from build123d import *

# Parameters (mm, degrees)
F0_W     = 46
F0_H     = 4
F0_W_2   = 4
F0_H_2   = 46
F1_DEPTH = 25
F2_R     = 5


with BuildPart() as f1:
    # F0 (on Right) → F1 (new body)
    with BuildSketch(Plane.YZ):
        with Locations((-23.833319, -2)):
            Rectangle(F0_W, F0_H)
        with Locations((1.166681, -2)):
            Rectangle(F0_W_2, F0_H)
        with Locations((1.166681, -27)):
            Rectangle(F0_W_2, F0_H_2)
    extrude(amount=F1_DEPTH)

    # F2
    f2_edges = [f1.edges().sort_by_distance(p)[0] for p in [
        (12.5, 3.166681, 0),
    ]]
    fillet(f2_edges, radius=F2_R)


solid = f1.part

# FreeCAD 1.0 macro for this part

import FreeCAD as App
import Part
import Sketcher

V = App.Vector


def edges_at(feature, points):
    """Names of the edges that pass closest to the given points."""
    edges = feature.Shape.Edges
    near = lambda p: min(range(len(edges)), key=lambda i: edges[i].distToShape(Part.Vertex(*p))[0])
    return sorted({f"Edge{near(p) + 1}" for p in points})


def add_polygon(sketch, points):
    """Adds a closed chain of lines whose ends are joined by coincident constraints."""
    first, n = sketch.GeometryCount, len(points)
    for a, b in zip(points, points[1:] + points[:1]):
        sketch.addGeometry(Part.LineSegment(App.Vector(*a, 0), App.Vector(*b, 0)), False)
    for i in range(n):
        sketch.addConstraint(Sketcher.Constraint("Coincident", first + i, 2, first + (i + 1) % n, 1))

doc = App.newDocument("Part")
body = doc.addObject("PartDesign::Body", "Body")

# Sketch on YZ plane
sketch1 = body.newObject("Sketcher::SketchObject", "Sketch")
sketch1.AttachmentSupport = (doc.getObject("YZ_Plane"), [""])
sketch1.MapMode = "FlatFace"
add_polygon(sketch1, [(-46.8, 0), (-46.8, -4), (-0.8, -4), (-0.8, -50), (3.2, -50), (3.2, 0)])  # lines 0-5
sketch1.addConstraint(Sketcher.Constraint("Vertical", 0))
sketch1.addConstraint(Sketcher.Constraint("Horizontal", 1))
sketch1.addConstraint(Sketcher.Constraint("Vertical", 2))
sketch1.addConstraint(Sketcher.Constraint("Horizontal", 3))
sketch1.addConstraint(Sketcher.Constraint("Vertical", 4))
sketch1.addConstraint(Sketcher.Constraint("Horizontal", 5))
sketch1.addConstraint(Sketcher.Constraint("PointOnObject", 4, 2, -1))
sketch1.addConstraint(Sketcher.Constraint("Equal", 3, 0))
sketch1.addConstraint(Sketcher.Constraint("Equal", 1, 2))
sketch1.addConstraint(Sketcher.Constraint("DistanceX", 1, 1, 1, 2, 46.0))
sketch1.addConstraint(Sketcher.Constraint("DistanceX", 3, 1, 3, 2, 4.0))
sketch1.addConstraint(Sketcher.Constraint("DistanceX", 0, 2, -1, 1, 46.833319))
pad1 = body.newObject("PartDesign::Pad", "Pad")
pad1.Profile = sketch1
pad1.Length = 25
doc.recompute()

fillet = body.newObject("PartDesign::Fillet", "Fillet")
fillet.Base = (pad1, edges_at(pad1, [(12.5, 3.167, 0)]))
fillet.Radius = 5

doc.recompute()
